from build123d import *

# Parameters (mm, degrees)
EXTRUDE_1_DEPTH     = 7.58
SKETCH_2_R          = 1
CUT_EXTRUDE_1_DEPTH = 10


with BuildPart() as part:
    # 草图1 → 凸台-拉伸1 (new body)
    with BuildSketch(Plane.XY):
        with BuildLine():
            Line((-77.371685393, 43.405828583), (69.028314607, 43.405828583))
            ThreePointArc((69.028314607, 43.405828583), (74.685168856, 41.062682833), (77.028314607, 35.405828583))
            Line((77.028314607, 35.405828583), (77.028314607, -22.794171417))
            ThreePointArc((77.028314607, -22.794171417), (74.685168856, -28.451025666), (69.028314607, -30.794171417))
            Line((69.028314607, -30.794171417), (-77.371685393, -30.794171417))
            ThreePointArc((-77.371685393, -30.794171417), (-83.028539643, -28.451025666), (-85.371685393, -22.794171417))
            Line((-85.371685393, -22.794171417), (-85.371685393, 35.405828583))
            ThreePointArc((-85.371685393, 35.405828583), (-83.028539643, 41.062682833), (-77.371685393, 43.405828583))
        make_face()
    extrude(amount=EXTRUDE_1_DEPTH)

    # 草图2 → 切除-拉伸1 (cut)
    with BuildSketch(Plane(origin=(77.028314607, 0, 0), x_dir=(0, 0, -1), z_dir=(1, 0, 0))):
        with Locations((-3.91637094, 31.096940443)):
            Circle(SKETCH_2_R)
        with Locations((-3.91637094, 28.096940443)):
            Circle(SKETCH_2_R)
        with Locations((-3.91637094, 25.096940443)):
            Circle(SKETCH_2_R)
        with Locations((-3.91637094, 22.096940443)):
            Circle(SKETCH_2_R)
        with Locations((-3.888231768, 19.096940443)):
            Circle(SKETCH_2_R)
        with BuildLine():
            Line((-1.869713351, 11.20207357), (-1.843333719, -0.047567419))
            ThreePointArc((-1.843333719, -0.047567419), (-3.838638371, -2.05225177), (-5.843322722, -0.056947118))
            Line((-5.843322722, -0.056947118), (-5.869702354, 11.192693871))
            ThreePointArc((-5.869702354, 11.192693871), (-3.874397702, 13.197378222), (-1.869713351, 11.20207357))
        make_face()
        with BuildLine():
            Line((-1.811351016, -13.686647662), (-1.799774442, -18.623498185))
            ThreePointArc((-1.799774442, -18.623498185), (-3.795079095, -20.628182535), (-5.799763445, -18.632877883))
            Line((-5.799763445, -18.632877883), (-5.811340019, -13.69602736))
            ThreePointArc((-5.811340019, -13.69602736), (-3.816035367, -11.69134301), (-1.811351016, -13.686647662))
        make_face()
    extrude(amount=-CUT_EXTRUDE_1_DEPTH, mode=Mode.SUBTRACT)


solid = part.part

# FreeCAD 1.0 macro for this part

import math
import FreeCAD as App
import Part
import Sketcher
from FreeCAD import Vector
Q = App.Units.Quantity

doc = App.newDocument("Part")
body = doc.addObject("PartDesign::Body", "Body")

sketch1 = body.newObject("Sketcher::SketchObject", "Sketch")
sketch1.AttachmentSupport = (doc.getObject("XY_Plane"), [""])
sketch1.MapMode = "FlatFace"
sketch1.addGeometry([
    Part.LineSegment(Vector(69, 43, 0), Vector(-77, 43, 0)),
    Part.ArcOfCircle(Part.Circle(Vector(-77, 35, 0), Vector(0, 0, 1), 8), math.radians(90), math.radians(180)),
    Part.LineSegment(Vector(-85, 35, 0), Vector(-85, -23, 0)),
    Part.ArcOfCircle(Part.Circle(Vector(-77, -23, 0), Vector(0, 0, 1), 8), math.radians(180), math.radians(270)),
    Part.LineSegment(Vector(-77, -31, 0), Vector(69, -31, 0)),
    Part.ArcOfCircle(Part.Circle(Vector(69, -23, 0), Vector(0, 0, 1), 8), math.radians(-90), math.radians(0)),
    Part.LineSegment(Vector(77, -23, 0), Vector(77, 35, 0)),
    Part.ArcOfCircle(Part.Circle(Vector(69, 35, 0), Vector(0, 0, 1), 8), math.radians(0), math.radians(90)),
], False)
sketch1.addConstraint([
    Sketcher.Constraint("Tangent", 0, 2, 1, 1),
    Sketcher.Constraint("Tangent", 1, 2, 2, 1),
    Sketcher.Constraint("Tangent", 2, 2, 3, 1),
    Sketcher.Constraint("Tangent", 3, 2, 4, 1),
    Sketcher.Constraint("Tangent", 4, 2, 5, 1),
    Sketcher.Constraint("Tangent", 5, 2, 6, 1),
    Sketcher.Constraint("Tangent", 6, 2, 7, 1),
    Sketcher.Constraint("Tangent", 7, 2, 0, 1),
    Sketcher.Constraint("Horizontal", 0),
    Sketcher.Constraint("Vertical", 2),
    Sketcher.Constraint("Horizontal", 4),
    Sketcher.Constraint("Vertical", 6),
    Sketcher.Constraint("Equal", 1, 3),
    Sketcher.Constraint("Equal", 3, 5),
    Sketcher.Constraint("Equal", 5, 7),
    Sketcher.Constraint("Radius", 1, Q("8 mm")),
    Sketcher.Constraint("DistanceX", 0, 2, 0, 1, Q("146.4 mm")),
    Sketcher.Constraint("DistanceY", 2, 2, 2, 1, Q("58.2 mm")),
    Sketcher.Constraint("DistanceY", -1, 1, 1, 3, Q("35.405829 mm")),
    Sketcher.Constraint("DistanceX", 1, 3, -1, 1, Q("77.371685 mm")),
])
pad1 = body.newObject("PartDesign::Pad", "Pad")
pad1.Profile = sketch1
pad1.Length = 7.58

sketch2 = body.newObject("Sketcher::SketchObject", "Sketch001")
sketch2.AttachmentSupport = (doc.getObject("YZ_Plane"), [""])
sketch2.MapMode = "FlatFace"
sketch2.AttachmentOffset = App.Placement(Vector(0, 0, 77.028315), App.Rotation())
sketch2.addGeometry([
    Part.Circle(Vector(31.1, 3.9, 0), Vector(0, 0, 1), 1),
    Part.Circle(Vector(28.1, 3.9, 0), Vector(0, 0, 1), 1),
    Part.Circle(Vector(25.1, 3.9, 0), Vector(0, 0, 1), 1),
    Part.Circle(Vector(22.1, 3.9, 0), Vector(0, 0, 1), 1),
    Part.Circle(Vector(19.1, 3.9, 0), Vector(0, 0, 1), 1),
    Part.LineSegment(Vector(0, 1.8, 0), Vector(11.2, 1.9, 0)),
    Part.ArcOfCircle(Part.Circle(Vector(11.2, 3.9, 0), Vector(0, 0, 1), 2), math.radians(-90), math.radians(90)),
    Part.LineSegment(Vector(11.2, 5.9, 0), Vector(-0.1, 5.8, 0)),
    Part.ArcOfCircle(Part.Circle(Vector(-0.1, 3.8, 0), Vector(0, 0, 1), 2), math.radians(90), math.radians(270)),
    Part.LineSegment(Vector(-18.6, 1.8, 0), Vector(-13.7, 1.8, 0)),
    Part.ArcOfCircle(Part.Circle(Vector(-13.7, 3.8, 0), Vector(0, 0, 1), 2), math.radians(-90), math.radians(90)),
    Part.LineSegment(Vector(-13.7, 5.8, 0), Vector(-18.6, 5.8, 0)),
    Part.ArcOfCircle(Part.Circle(Vector(-18.6, 3.8, 0), Vector(0, 0, 1), 2), math.radians(90), math.radians(270)),
], False)
sketch2.addConstraint([
    Sketcher.Constraint("Tangent", 5, 2, 6, 1),
    Sketcher.Constraint("Tangent", 6, 2, 7, 1),
    Sketcher.Constraint("Tangent", 7, 2, 8, 1),
    Sketcher.Constraint("Tangent", 8, 2, 5, 1),
    Sketcher.Constraint("Tangent", 9, 2, 10, 1),
    Sketcher.Constraint("Tangent", 10, 2, 11, 1),
    Sketcher.Constraint("Tangent", 11, 2, 12, 1),
    Sketcher.Constraint("Tangent", 12, 2, 9, 1),
    Sketcher.Constraint("Equal", 0, 1),
    Sketcher.Constraint("Equal", 1, 2),
    Sketcher.Constraint("Equal", 2, 3),
    Sketcher.Constraint("Equal", 3, 4),
    Sketcher.Constraint("Equal", 6, 8),
    Sketcher.Constraint("Equal", 8, 10),
    Sketcher.Constraint("Equal", 10, 12),
    Sketcher.Constraint("Parallel", 7, 9),
    Sketcher.Constraint("Horizontal", 0, 3, 1, 3),
    Sketcher.Constraint("Horizontal", 1, 3, 2, 3),
    Sketcher.Constraint("Horizontal", 2, 3, 3, 3),
    Sketcher.Constraint("Diameter", 0, Q("2 mm")),
    Sketcher.Constraint("Radius", 6, Q("2 mm")),
    Sketcher.Constraint("DistanceX", 1, 3, 0, 3, Q("3 mm")),
    Sketcher.Constraint("DistanceX", 2, 3, 1, 3, Q("3 mm")),
    Sketcher.Constraint("DistanceX", 3, 3, 2, 3, Q("3 mm")),
    Sketcher.Constraint("DistanceX", 4, 3, 3, 3, Q("3 mm")),
    Sketcher.Constraint("DistanceX", 12, 2, -1, 1, Q("18.623498 mm")),
    Sketcher.Constraint("DistanceY", 12, 3, 3, 3, Q("0.116602 mm")),
    Sketcher.Constraint("DistanceX", 9, 2, 7, 2, Q("13.629701 mm")),
    Sketcher.Constraint("Distance", 5, Q("11.249672 mm")),
    Sketcher.Constraint("DistanceX", -1, 1, 0, 3, Q("31.09694 mm")),
    Sketcher.Constraint("DistanceY", -1, 1, 0, 3, Q("3.916371 mm")),
    Sketcher.Constraint("DistanceY", -1, 1, 4, 3, Q("3.888232 mm")),
    Sketcher.Constraint("DistanceY", -1, 1, 8, 3, Q("3.843328 mm")),
    Sketcher.Constraint("DistanceX", 12, 3, -1, 1, Q("18.628188 mm")),
    Sketcher.Constraint("DistanceX", 12, 3, 10, 3, Q("4.936851 mm")),
])
pocket1 = body.newObject("PartDesign::Pocket", "Pocket")
pocket1.Profile = sketch2
pocket1.Length = 10

doc.recompute()
